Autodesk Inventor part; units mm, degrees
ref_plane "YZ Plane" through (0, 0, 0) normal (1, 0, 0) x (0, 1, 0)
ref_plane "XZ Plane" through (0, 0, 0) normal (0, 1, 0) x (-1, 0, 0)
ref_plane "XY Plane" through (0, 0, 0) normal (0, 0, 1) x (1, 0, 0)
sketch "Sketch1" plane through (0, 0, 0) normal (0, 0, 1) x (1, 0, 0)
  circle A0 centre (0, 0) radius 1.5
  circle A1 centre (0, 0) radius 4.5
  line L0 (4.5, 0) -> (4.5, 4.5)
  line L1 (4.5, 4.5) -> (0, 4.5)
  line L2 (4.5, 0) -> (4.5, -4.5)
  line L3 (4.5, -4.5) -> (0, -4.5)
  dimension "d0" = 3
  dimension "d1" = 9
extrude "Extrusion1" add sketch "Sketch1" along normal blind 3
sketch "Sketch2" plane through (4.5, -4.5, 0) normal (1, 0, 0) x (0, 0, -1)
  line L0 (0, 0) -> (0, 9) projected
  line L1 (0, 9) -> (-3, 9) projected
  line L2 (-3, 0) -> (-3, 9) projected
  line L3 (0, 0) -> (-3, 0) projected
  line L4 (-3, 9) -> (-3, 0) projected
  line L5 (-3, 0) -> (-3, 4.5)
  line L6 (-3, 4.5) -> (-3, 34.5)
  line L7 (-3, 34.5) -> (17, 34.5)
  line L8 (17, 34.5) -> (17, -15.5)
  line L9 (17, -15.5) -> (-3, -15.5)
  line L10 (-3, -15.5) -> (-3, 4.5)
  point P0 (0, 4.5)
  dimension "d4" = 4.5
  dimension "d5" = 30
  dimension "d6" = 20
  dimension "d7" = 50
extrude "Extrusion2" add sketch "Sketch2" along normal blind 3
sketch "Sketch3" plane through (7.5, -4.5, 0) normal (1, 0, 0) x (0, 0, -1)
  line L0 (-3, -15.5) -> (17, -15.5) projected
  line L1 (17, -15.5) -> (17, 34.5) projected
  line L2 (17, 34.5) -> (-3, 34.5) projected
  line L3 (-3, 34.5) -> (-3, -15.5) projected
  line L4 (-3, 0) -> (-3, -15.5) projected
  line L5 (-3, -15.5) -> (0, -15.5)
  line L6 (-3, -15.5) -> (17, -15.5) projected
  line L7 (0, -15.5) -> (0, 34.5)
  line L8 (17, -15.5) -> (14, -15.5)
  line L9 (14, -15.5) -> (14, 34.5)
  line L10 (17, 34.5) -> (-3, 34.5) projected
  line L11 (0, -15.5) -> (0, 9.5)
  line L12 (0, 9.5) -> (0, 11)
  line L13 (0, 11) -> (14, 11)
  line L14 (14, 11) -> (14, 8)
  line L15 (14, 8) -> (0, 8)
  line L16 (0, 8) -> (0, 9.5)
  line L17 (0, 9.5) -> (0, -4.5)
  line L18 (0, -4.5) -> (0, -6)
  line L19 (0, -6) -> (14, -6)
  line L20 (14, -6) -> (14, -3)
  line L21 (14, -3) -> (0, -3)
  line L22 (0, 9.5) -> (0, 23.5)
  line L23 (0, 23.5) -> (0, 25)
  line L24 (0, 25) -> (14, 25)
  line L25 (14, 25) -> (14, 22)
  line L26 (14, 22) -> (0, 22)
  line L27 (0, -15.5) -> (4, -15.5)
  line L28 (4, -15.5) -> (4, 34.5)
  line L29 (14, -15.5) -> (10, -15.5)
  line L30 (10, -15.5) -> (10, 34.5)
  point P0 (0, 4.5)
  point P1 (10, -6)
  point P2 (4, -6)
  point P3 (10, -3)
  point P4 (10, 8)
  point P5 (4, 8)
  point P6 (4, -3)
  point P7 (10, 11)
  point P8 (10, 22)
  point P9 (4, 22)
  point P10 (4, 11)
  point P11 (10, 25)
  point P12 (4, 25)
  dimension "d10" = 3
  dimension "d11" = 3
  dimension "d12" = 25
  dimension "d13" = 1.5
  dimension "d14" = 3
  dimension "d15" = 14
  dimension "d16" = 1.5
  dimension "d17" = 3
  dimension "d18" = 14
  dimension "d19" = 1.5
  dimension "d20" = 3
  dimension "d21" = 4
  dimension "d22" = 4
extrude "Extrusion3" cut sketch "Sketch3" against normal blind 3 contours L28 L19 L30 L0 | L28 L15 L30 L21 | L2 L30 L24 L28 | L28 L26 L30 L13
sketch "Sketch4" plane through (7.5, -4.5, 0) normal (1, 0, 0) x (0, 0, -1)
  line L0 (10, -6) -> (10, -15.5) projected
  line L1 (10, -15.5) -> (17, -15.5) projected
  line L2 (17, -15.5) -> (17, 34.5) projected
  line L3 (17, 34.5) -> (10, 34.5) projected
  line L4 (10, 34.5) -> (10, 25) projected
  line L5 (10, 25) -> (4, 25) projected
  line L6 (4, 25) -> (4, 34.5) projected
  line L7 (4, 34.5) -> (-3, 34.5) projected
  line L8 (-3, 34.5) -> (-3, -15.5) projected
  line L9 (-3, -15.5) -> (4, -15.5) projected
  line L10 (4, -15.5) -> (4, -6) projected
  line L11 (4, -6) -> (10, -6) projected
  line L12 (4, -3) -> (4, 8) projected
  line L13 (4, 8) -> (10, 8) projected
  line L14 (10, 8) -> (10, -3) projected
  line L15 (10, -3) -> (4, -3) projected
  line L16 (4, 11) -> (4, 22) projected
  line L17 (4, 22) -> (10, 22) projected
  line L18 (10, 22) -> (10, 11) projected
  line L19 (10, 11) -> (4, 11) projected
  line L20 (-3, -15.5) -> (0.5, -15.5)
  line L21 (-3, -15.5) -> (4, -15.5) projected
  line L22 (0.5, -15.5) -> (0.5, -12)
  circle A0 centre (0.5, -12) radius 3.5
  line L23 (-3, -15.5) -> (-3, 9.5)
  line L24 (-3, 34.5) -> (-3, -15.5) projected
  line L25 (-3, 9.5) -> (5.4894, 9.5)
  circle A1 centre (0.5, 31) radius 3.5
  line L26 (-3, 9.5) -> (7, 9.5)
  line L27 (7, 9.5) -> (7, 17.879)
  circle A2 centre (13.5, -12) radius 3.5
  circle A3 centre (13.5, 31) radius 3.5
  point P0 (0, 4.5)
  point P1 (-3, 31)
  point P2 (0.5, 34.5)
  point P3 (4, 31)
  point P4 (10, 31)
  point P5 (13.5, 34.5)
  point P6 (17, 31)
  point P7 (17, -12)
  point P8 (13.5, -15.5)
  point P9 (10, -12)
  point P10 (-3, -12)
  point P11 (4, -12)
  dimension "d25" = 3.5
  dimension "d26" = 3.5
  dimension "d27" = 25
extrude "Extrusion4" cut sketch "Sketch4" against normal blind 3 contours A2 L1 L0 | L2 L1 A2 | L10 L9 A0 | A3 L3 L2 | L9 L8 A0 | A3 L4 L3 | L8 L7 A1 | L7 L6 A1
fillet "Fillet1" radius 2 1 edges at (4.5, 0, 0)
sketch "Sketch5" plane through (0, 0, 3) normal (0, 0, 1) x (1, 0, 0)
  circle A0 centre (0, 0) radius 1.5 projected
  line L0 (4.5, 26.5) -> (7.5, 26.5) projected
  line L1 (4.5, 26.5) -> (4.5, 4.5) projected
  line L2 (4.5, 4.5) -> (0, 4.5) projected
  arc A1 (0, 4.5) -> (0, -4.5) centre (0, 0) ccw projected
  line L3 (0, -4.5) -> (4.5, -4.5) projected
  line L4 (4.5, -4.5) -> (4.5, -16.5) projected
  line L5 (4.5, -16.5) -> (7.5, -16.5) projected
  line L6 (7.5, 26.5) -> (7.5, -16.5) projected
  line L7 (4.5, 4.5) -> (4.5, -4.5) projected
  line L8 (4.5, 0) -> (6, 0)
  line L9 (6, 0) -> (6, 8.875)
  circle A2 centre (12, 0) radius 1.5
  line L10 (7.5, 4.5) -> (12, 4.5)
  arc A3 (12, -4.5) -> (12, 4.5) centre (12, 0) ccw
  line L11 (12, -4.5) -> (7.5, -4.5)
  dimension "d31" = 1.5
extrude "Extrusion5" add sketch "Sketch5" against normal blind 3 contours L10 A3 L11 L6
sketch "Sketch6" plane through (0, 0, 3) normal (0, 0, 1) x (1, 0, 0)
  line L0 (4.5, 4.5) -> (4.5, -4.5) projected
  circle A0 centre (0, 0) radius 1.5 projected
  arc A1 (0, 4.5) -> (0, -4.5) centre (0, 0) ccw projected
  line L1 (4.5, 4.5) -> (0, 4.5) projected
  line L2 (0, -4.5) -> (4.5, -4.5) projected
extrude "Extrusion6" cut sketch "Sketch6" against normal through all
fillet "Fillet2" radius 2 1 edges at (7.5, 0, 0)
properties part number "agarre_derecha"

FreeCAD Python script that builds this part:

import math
import FreeCAD as App
import Part
import Sketcher


def edges_at(feature, points):
    """Names of the edges that pass closest to the given points."""
    edges = feature.Shape.Edges
    near = lambda p: min(range(len(edges)), key=lambda i: edges[i].distToShape(Part.Vertex(*p))[0])
    return sorted({f"Edge{near(p) + 1}" for p in points})

doc = App.newDocument("Part")
body = doc.addObject("PartDesign::Body", "Body")

# Sketch on XY plane
sketch1 = doc.addObject("Sketcher::SketchObject", "Sketch")
body.addObject(sketch1)
sketch1.AttachmentSupport = (doc.XY_Plane, [""])
sketch1.MapMode = "FlatFace"
sketch1.addGeometry(Part.ArcOfCircle(Part.Circle(App.Vector(0, 0, 0), App.Vector(0, 0, 1), 4.5), math.radians(90), math.radians(270)), False)
sketch1.addGeometry(Part.LineSegment(App.Vector(0, -4.5, 0), App.Vector(4.5, -4.5, 0)), False)
sketch1.addGeometry(Part.LineSegment(App.Vector(4.5, -4.5, 0), App.Vector(4.5, 4.5, 0)), False)
sketch1.addGeometry(Part.LineSegment(App.Vector(4.5, 4.5, 0), App.Vector(0, 4.5, 0)), False)
sketch1.addGeometry(Part.Circle(App.Vector(0, 0, 0), App.Vector(0, 0, 1), 1.5), False)
sketch1.addConstraint(Sketcher.Constraint("Tangent", 0, 2, 1, 1))
sketch1.addConstraint(Sketcher.Constraint("Coincident", 1, 2, 2, 1))
sketch1.addConstraint(Sketcher.Constraint("Coincident", 2, 2, 3, 1))
sketch1.addConstraint(Sketcher.Constraint("Tangent", 3, 2, 0, 1))
sketch1.addConstraint(Sketcher.Constraint("Horizontal", 1))
sketch1.addConstraint(Sketcher.Constraint("Vertical", 2))
sketch1.addConstraint(Sketcher.Constraint("Horizontal", 3))
sketch1.addConstraint(Sketcher.Constraint("Coincident", 0, 3, -1, 1))
sketch1.addConstraint(Sketcher.Constraint("Coincident", 4, 3, -1, 1))
sketch1.addConstraint(Sketcher.Constraint("Diameter", 4, 3.0))
sketch1.addConstraint(Sketcher.Constraint("Radius", 0, 4.5))
sketch1.addConstraint(Sketcher.Constraint("DistanceX", 1, 1, 1, 2, 4.5))
pad1 = doc.addObject("PartDesign::Pad", "Pad")
body.addObject(pad1)
pad1.Profile = sketch1
pad1.Length = 3

# Sketch on YZ plane
sketch2 = doc.addObject("Sketcher::SketchObject", "Sketch001")
body.addObject(sketch2)
sketch2.AttachmentSupport = (doc.YZ_Plane, [""])
sketch2.MapMode = "FlatFace"
sketch2.AttachmentOffset = App.Placement(App.Vector(0, 0, 4.5), App.Rotation())
sketch2.addGeometry(Part.LineSegment(App.Vector(-20, 3, 0), App.Vector(-20, -17, 0)), False)
sketch2.addGeometry(Part.LineSegment(App.Vector(-20, -17, 0), App.Vector(30, -17, 0)), False)
sketch2.addGeometry(Part.LineSegment(App.Vector(30, -17, 0), App.Vector(30, 3, 0)), False)
sketch2.addGeometry(Part.LineSegment(App.Vector(30, 3, 0), App.Vector(-20, 3, 0)), False)
sketch2.addConstraint(Sketcher.Constraint("Coincident", 0, 2, 1, 1))
sketch2.addConstraint(Sketcher.Constraint("Coincident", 1, 2, 2, 1))
sketch2.addConstraint(Sketcher.Constraint("Coincident", 2, 2, 3, 1))
sketch2.addConstraint(Sketcher.Constraint("Coincident", 3, 2, 0, 1))
sketch2.addConstraint(Sketcher.Constraint("Vertical", 0))
sketch2.addConstraint(Sketcher.Constraint("Horizontal", 1))
sketch2.addConstraint(Sketcher.Constraint("Vertical", 2))
sketch2.addConstraint(Sketcher.Constraint("Horizontal", 3))
sketch2.addConstraint(Sketcher.Constraint("DistanceX", 1, 1, 1, 2, 50.0))
sketch2.addConstraint(Sketcher.Constraint("DistanceY", 0, 2, 0, 1, 20.0))
sketch2.addConstraint(Sketcher.Constraint("DistanceX", 0, 2, -1, 1, 20.0))
sketch2.addConstraint(Sketcher.Constraint("DistanceY", 0, 2, -1, 1, 17.0))
pad2 = doc.addObject("PartDesign::Pad", "Pad001")
body.addObject(pad2)
pad2.Profile = sketch2
pad2.Length = 3

# Sketch on YZ plane
sketch3 = doc.addObject("Sketcher::SketchObject", "Sketch002")
body.addObject(sketch3)
sketch3.AttachmentSupport = (doc.YZ_Plane, [""])
sketch3.MapMode = "FlatFace"
sketch3.AttachmentOffset = App.Placement(App.Vector(0, 0, 7.5), App.Rotation())
sketch3.addGeometry(Part.LineSegment(App.Vector(-10, -4, 0), App.Vector(-20, -4, 0)), False)
sketch3.addGeometry(Part.LineSegment(App.Vector(-20, -4, 0), App.Vector(-20, -10, 0)), False)
sketch3.addGeometry(Part.LineSegment(App.Vector(-20, -10, 0), App.Vector(-10, -10, 0)), False)
sketch3.addGeometry(Part.LineSegment(App.Vector(-10, -10, 0), App.Vector(-10, -4, 0)), False)
sketch3.addGeometry(Part.LineSegment(App.Vector(4, -4, 0), App.Vector(-8, -4, 0)), False)
sketch3.addGeometry(Part.LineSegment(App.Vector(-8, -4, 0), App.Vector(-8, -10, 0)), False)
sketch3.addGeometry(Part.LineSegment(App.Vector(-8, -10, 0), App.Vector(4, -10, 0)), False)
sketch3.addGeometry(Part.LineSegment(App.Vector(4, -10, 0), App.Vector(4, -4, 0)), False)
sketch3.addGeometry(Part.LineSegment(App.Vector(30, -10, 0), App.Vector(30, -4, 0)), False)
sketch3.addGeometry(Part.LineSegment(App.Vector(30, -4, 0), App.Vector(20, -4, 0)), False)
sketch3.addGeometry(Part.LineSegment(App.Vector(20, -4, 0), App.Vector(20, -10, 0)), False)
sketch3.addGeometry(Part.LineSegment(App.Vector(20, -10, 0), App.Vector(30, -10, 0)), False)
sketch3.addGeometry(Part.LineSegment(App.Vector(18, -4, 0), App.Vector(6, -4, 0)), False)
sketch3.addGeometry(Part.LineSegment(App.Vector(6, -4, 0), App.Vector(6, -10, 0)), False)
sketch3.addGeometry(Part.LineSegment(App.Vector(6, -10, 0), App.Vector(18, -10, 0)), False)
sketch3.addGeometry(Part.LineSegment(App.Vector(18, -10, 0), App.Vector(18, -4, 0)), False)
sketch3.addConstraint(Sketcher.Constraint("Coincident", 0, 2, 1, 1))
sketch3.addConstraint(Sketcher.Constraint("Coincident", 1, 2, 2, 1))
sketch3.addConstraint(Sketcher.Constraint("Coincident", 2, 2, 3, 1))
sketch3.addConstraint(Sketcher.Constraint("Coincident", 3, 2, 0, 1))
sketch3.addConstraint(Sketcher.Constraint("Coincident", 4, 2, 5, 1))
sketch3.addConstraint(Sketcher.Constraint("Coincident", 5, 2, 6, 1))
sketch3.addConstraint(Sketcher.Constraint("Coincident", 6, 2, 7, 1))
sketch3.addConstraint(Sketcher.Constraint("Coincident", 7, 2, 4, 1))
sketch3.addConstraint(Sketcher.Constraint("Coincident", 8, 2, 9, 1))
sketch3.addConstraint(Sketcher.Constraint("Coincident", 9, 2, 10, 1))
sketch3.addConstraint(Sketcher.Constraint("Coincident", 10, 2, 11, 1))
sketch3.addConstraint(Sketcher.Constraint("Coincident", 11, 2, 8, 1))
sketch3.addConstraint(Sketcher.Constraint("Coincident", 12, 2, 13, 1))
sketch3.addConstraint(Sketcher.Constraint("Coincident", 13, 2, 14, 1))
sketch3.addConstraint(Sketcher.Constraint("Coincident", 14, 2, 15, 1))
sketch3.addConstraint(Sketcher.Constraint("Coincident", 15, 2, 12, 1))
sketch3.addConstraint(Sketcher.Constraint("Horizontal", 0))
sketch3.addConstraint(Sketcher.Constraint("Vertical", 1))
sketch3.addConstraint(Sketcher.Constraint("Horizontal", 2))
sketch3.addConstraint(Sketcher.Constraint("Vertical", 3))
sketch3.addConstraint(Sketcher.Constraint("Horizontal", 4))
sketch3.addConstraint(Sketcher.Constraint("Vertical", 5))
sketch3.addConstraint(Sketcher.Constraint("Horizontal", 6))
sketch3.addConstraint(Sketcher.Constraint("Vertical", 7))
sketch3.addConstraint(Sketcher.Constraint("Vertical", 8))
sketch3.addConstraint(Sketcher.Constraint("Horizontal", 9))
sketch3.addConstraint(Sketcher.Constraint("Vertical", 10))
sketch3.addConstraint(Sketcher.Constraint("Horizontal", 11))
sketch3.addConstraint(Sketcher.Constraint("Horizontal", 12))
sketch3.addConstraint(Sketcher.Constraint("Vertical", 13))
sketch3.addConstraint(Sketcher.Constraint("Horizontal", 14))
sketch3.addConstraint(Sketcher.Constraint("Vertical", 15))
sketch3.addConstraint(Sketcher.Constraint("Horizontal", 3, 2, 4, 2))
sketch3.addConstraint(Sketcher.Constraint("Horizontal", 2, 2, 5, 2))
sketch3.addConstraint(Sketcher.Constraint("Horizontal", 7, 2, 8, 2))
sketch3.addConstraint(Sketcher.Constraint("Horizontal", 6, 2, 10, 2))
sketch3.addConstraint(Sketcher.Constraint("Horizontal", 9, 2, 12, 2))
sketch3.addConstraint(Sketcher.Constraint("Horizontal", 11, 2, 13, 2))
sketch3.addConstraint(Sketcher.Constraint("Equal", 2, 9))
sketch3.addConstraint(Sketcher.Constraint("Equal", 6, 12))
sketch3.addConstraint(Sketcher.Constraint("DistanceY", 0, 2, -1, 1, 4.0))
sketch3.addConstraint(Sketcher.Constraint("DistanceX", 3, 2, 4, 2, 3.0))
sketch3.addConstraint(Sketcher.Constraint("DistanceX", 2, 2, 6, 2, 14.0))
sketch3.addConstraint(Sketcher.Constraint("DistanceX", 7, 2, 12, 2, 3.0))
sketch3.addConstraint(Sketcher.Constraint("DistanceX", 12, 2, 9, 2, 14.0))
sketch3.addConstraint(Sketcher.Constraint("DistanceY", 1, 2, 1, 1, 6.0))
sketch3.addConstraint(Sketcher.Constraint("DistanceX", 0, 2, 0, 1, 9.5))
sketch3.addConstraint(Sketcher.Constraint("DistanceX", 0, 2, -1, 1, 20.0))
pocket1 = doc.addObject("PartDesign::Pocket", "Pocket")
body.addObject(pocket1)
pocket1.Profile = sketch3
pocket1.Length = 3

# Sketch on YZ plane
sketch4 = doc.addObject("Sketcher::SketchObject", "Sketch003")
body.addObject(sketch4)
sketch4.AttachmentSupport = (doc.YZ_Plane, [""])
sketch4.MapMode = "FlatFace"
sketch4.AttachmentOffset = App.Placement(App.Vector(0, 0, 7.5), App.Rotation())
sketch4.addGeometry(Part.ArcOfCircle(Part.Circle(App.Vector(-16.5, -13.5, 0), App.Vector(0, 0, 1), 3.5), math.radians(90), math.radians(180)), False)
sketch4.addGeometry(Part.LineSegment(App.Vector(-16.5, -10, 0), App.Vector(-20, -10, 0)), False)
sketch4.addGeometry(Part.LineSegment(App.Vector(-20, -10, 0), App.Vector(-20, -13.5, 0)), False)
sketch4.addGeometry(Part.LineSegment(App.Vector(-20, -17, 0), App.Vector(-16.5, -17, 0)), False)
sketch4.addGeometry(Part.ArcOfCircle(Part.Circle(App.Vector(-16.5, -13.5, 0), App.Vector(0, 0, 1), 3.5), math.radians(180), math.radians(270)), False)
sketch4.addGeometry(Part.LineSegment(App.Vector(-20, -13.5, 0), App.Vector(-20, -17, 0)), False)
sketch4.addGeometry(Part.LineSegment(App.Vector(-20, -4, 0), App.Vector(-16.5, -4, 0)), False)
sketch4.addGeometry(Part.ArcOfCircle(Part.Circle(App.Vector(-16.5, -0.5, 0), App.Vector(0, 0, 1), 3.5), math.radians(180), math.radians(270)), False)
sketch4.addGeometry(Part.LineSegment(App.Vector(-20, -0.5, 0), App.Vector(-20, -4, 0)), False)
sketch4.addGeometry(Part.ArcOfCircle(Part.Circle(App.Vector(26.5, -13.5, 0), App.Vector(0, 0, 1), 3.5), math.radians(-90), math.radians(0)), False)
sketch4.addGeometry(Part.LineSegment(App.Vector(26.5, -17, 0), App.Vector(30, -17, 0)), False)
sketch4.addGeometry(Part.LineSegment(App.Vector(30, -17, 0), App.Vector(30, -13.5, 0)), False)
sketch4.addGeometry(Part.LineSegment(App.Vector(-20, 3, 0), App.Vector(-20, -0.5, 0)), False)
sketch4.addGeometry(Part.ArcOfCircle(Part.Circle(App.Vector(-16.5, -0.5, 0), App.Vector(0, 0, 1), 3.5), math.radians(90), math.radians(180)), False)
sketch4.addGeometry(Part.LineSegment(App.Vector(-16.5, 3, 0), App.Vector(-20, 3, 0)), False)
sketch4.addGeometry(Part.ArcOfCircle(Part.Circle(App.Vector(26.5, -13.5, 0), App.Vector(0, 0, 1), 3.5), math.radians(0), math.radians(90)), False)
sketch4.addGeometry(Part.LineSegment(App.Vector(30, -13.5, 0), App.Vector(30, -10, 0)), False)
sketch4.addGeometry(Part.LineSegment(App.Vector(30, -10, 0), App.Vector(26.5, -10, 0)), False)
sketch4.addGeometry(Part.LineSegment(App.Vector(30, 3, 0), App.Vector(26.5, 3, 0)), False)
sketch4.addGeometry(Part.ArcOfCircle(Part.Circle(App.Vector(26.5, -0.5, 0), App.Vector(0, 0, 1), 3.5), math.radians(0), math.radians(90)), False)
sketch4.addGeometry(Part.LineSegment(App.Vector(30, -0.5, 0), App.Vector(30, 3, 0)), False)
sketch4.addGeometry(Part.LineSegment(App.Vector(30, -4, 0), App.Vector(30, -0.5, 0)), False)
sketch4.addGeometry(Part.ArcOfCircle(Part.Circle(App.Vector(26.5, -0.5, 0), App.Vector(0, 0, 1), 3.5), math.radians(-90), math.radians(0)), False)
sketch4.addGeometry(Part.LineSegment(App.Vector(26.5, -4, 0), App.Vector(30, -4, 0)), False)
sketch4.addConstraint(Sketcher.Constraint("Tangent", 0, 1, 1, 1))
sketch4.addConstraint(Sketcher.Constraint("Coincident", 1, 2, 2, 1))
sketch4.addConstraint(Sketcher.Constraint("Tangent", 2, 2, 0, 2))
sketch4.addConstraint(Sketcher.Constraint("Tangent", 3, 2, 4, 2))
sketch4.addConstraint(Sketcher.Constraint("Tangent", 4, 1, 5, 1))
sketch4.addConstraint(Sketcher.Constraint("Coincident", 5, 2, 3, 1))
sketch4.addConstraint(Sketcher.Constraint("Tangent", 6, 2, 7, 2))
sketch4.addConstraint(Sketcher.Constraint("Tangent", 7, 1, 8, 1))
sketch4.addConstraint(Sketcher.Constraint("Coincident", 8, 2, 6, 1))
sketch4.addConstraint(Sketcher.Constraint("Tangent", 9, 1, 10, 1))
sketch4.addConstraint(Sketcher.Constraint("Coincident", 10, 2, 11, 1))
sketch4.addConstraint(Sketcher.Constraint("Tangent", 11, 2, 9, 2))
sketch4.addConstraint(Sketcher.Constraint("Tangent", 12, 2, 13, 2))
sketch4.addConstraint(Sketcher.Constraint("Tangent", 13, 1, 14, 1))
sketch4.addConstraint(Sketcher.Constraint("Coincident", 14, 2, 12, 1))
sketch4.addConstraint(Sketcher.Constraint("Tangent", 15, 1, 16, 1))
sketch4.addConstraint(Sketcher.Constraint("Coincident", 16, 2, 17, 1))
sketch4.addConstraint(Sketcher.Constraint("Tangent", 17, 2, 15, 2))
sketch4.addConstraint(Sketcher.Constraint("Tangent", 18, 2, 19, 2))
sketch4.addConstraint(Sketcher.Constraint("Tangent", 19, 1, 20, 1))
sketch4.addConstraint(Sketcher.Constraint("Coincident", 20, 2, 18, 1))
sketch4.addConstraint(Sketcher.Constraint("Tangent", 21, 2, 22, 2))
sketch4.addConstraint(Sketcher.Constraint("Tangent", 22, 1, 23, 1))
sketch4.addConstraint(Sketcher.Constraint("Coincident", 23, 2, 21, 1))
sketch4.addConstraint(Sketcher.Constraint("Horizontal", 1))
sketch4.addConstraint(Sketcher.Constraint("Vertical", 2))
sketch4.addConstraint(Sketcher.Constraint("Horizontal", 3))
sketch4.addConstraint(Sketcher.Constraint("Vertical", 5))
sketch4.addConstraint(Sketcher.Constraint("Horizontal", 6))
sketch4.addConstraint(Sketcher.Constraint("Vertical", 8))
sketch4.addConstraint(Sketcher.Constraint("Horizontal", 10))
sketch4.addConstraint(Sketcher.Constraint("Vertical", 11))
sketch4.addConstraint(Sketcher.Constraint("Vertical", 12))
sketch4.addConstraint(Sketcher.Constraint("Horizontal", 14))
sketch4.addConstraint(Sketcher.Constraint("Vertical", 16))
sketch4.addConstraint(Sketcher.Constraint("Horizontal", 17))
sketch4.addConstraint(Sketcher.Constraint("Horizontal", 18))
sketch4.addConstraint(Sketcher.Constraint("Vertical", 20))
sketch4.addConstraint(Sketcher.Constraint("Vertical", 21))
sketch4.addConstraint(Sketcher.Constraint("Horizontal", 23))
sketch4.addConstraint(Sketcher.Constraint("Coincident", 4, 3, 0, 3))
sketch4.addConstraint(Sketcher.Constraint("Coincident", 13, 3, 7, 3))
sketch4.addConstraint(Sketcher.Constraint("Coincident", 15, 3, 9, 3))
sketch4.addConstraint(Sketcher.Constraint("Coincident", 22, 3, 19, 3))
sketch4.addConstraint(Sketcher.Constraint("Equal", 0, 4))
sketch4.addConstraint(Sketcher.Constraint("Equal", 4, 7))
sketch4.addConstraint(Sketcher.Constraint("Equal", 7, 9))
sketch4.addConstraint(Sketcher.Constraint("Equal", 9, 13))
sketch4.addConstraint(Sketcher.Constraint("Equal", 13, 15))
sketch4.addConstraint(Sketcher.Constraint("Equal", 15, 19))
sketch4.addConstraint(Sketcher.Constraint("Equal", 19, 22))
sketch4.addConstraint(Sketcher.Constraint("Horizontal", 4, 3, 9, 3))
sketch4.addConstraint(Sketcher.Constraint("Horizontal", 13, 3, 19, 3))
sketch4.addConstraint(Sketcher.Constraint("Vertical", 4, 3, 7, 3))
sketch4.addConstraint(Sketcher.Constraint("Vertical", 15, 3, 19, 3))
sketch4.addConstraint(Sketcher.Constraint("Radius", 0, 3.5))
sketch4.addConstraint(Sketcher.Constraint("DistanceY", 0, 1, -1, 1, 10.0))
sketch4.addConstraint(Sketcher.Constraint("DistanceX", 1, 2, -1, 1, 20.0))
sketch4.addConstraint(Sketcher.Constraint("DistanceY", 6, 2, -1, 1, 4.0))
sketch4.addConstraint(Sketcher.Constraint("DistanceX", -1, 1, 10, 2, 30.0))
pocket2 = doc.addObject("PartDesign::Pocket", "Pocket001")
body.addObject(pocket2)
pocket2.Profile = sketch4
pocket2.Length = 3
doc.recompute()

fillet = doc.addObject("PartDesign::Fillet", "Fillet")
body.addObject(fillet)
fillet.Base = (pocket2, edges_at(pocket2, [(4.5, 0, 0)]))
fillet.Radius = 2

# Sketch on XY plane
sketch5 = doc.addObject("Sketcher::SketchObject", "Sketch004")
body.addObject(sketch5)
sketch5.AttachmentSupport = (doc.XY_Plane, [""])
sketch5.MapMode = "FlatFace"
sketch5.AttachmentOffset = App.Placement(App.Vector(0, 0, 3), App.Rotation())
sketch5.addGeometry(Part.LineSegment(App.Vector(12, 4.5, 0), App.Vector(7.5, 4.5, 0)), False)
sketch5.addGeometry(Part.LineSegment(App.Vector(7.5, 4.5, 0), App.Vector(7.5, -4.5, 0)), False)
sketch5.addGeometry(Part.LineSegment(App.Vector(7.5, -4.5, 0), App.Vector(12, -4.5, 0)), False)
sketch5.addGeometry(Part.ArcOfCircle(Part.Circle(App.Vector(12, 0, 0), App.Vector(0, 0, 1), 4.5), math.radians(-90), math.radians(90)), False)
sketch5.addGeometry(Part.Circle(App.Vector(12, 0, 0), App.Vector(0, 0, 1), 1.5), False)
sketch5.addConstraint(Sketcher.Constraint("Coincident", 0, 2, 1, 1))
sketch5.addConstraint(Sketcher.Constraint("Coincident", 1, 2, 2, 1))
sketch5.addConstraint(Sketcher.Constraint("Tangent", 2, 2, 3, 1))
sketch5.addConstraint(Sketcher.Constraint("Tangent", 3, 2, 0, 1))
sketch5.addConstraint(Sketcher.Constraint("Horizontal", 0))
sketch5.addConstraint(Sketcher.Constraint("Vertical", 1))
sketch5.addConstraint(Sketcher.Constraint("Horizontal", 2))
sketch5.addConstraint(Sketcher.Constraint("Coincident", 4, 3, 3, 3))
sketch5.addConstraint(Sketcher.Constraint("PointOnObject", 3, 3, -1))
sketch5.addConstraint(Sketcher.Constraint("Diameter", 4, 3.0))
sketch5.addConstraint(Sketcher.Constraint("Radius", 3, 4.5))
sketch5.addConstraint(Sketcher.Constraint("DistanceX", 0, 2, 0, 1, 4.5))
sketch5.addConstraint(Sketcher.Constraint("DistanceX", -1, 1, 3, 3, 12.0))
pad3 = doc.addObject("PartDesign::Pad", "Pad002")
body.addObject(pad3)
pad3.Profile = sketch5
pad3.Length = 3
pad3.Reversed = True

# Sketch on XY plane
sketch6 = doc.addObject("Sketcher::SketchObject", "Sketch005")
body.addObject(sketch6)
sketch6.AttachmentSupport = (doc.XY_Plane, [""])
sketch6.MapMode = "FlatFace"
sketch6.AttachmentOffset = App.Placement(App.Vector(0, 0, 3), App.Rotation())
sketch6.addGeometry(Part.LineSegment(App.Vector(4.5, -4.5, 0), App.Vector(4.5, 4.5, 0)), False)
sketch6.addGeometry(Part.LineSegment(App.Vector(4.5, 4.5, 0), App.Vector(0, 4.5, 0)), False)
sketch6.addGeometry(Part.ArcOfCircle(Part.Circle(App.Vector(0, 0, 0), App.Vector(0, 0, 1), 4.5), math.radians(90), math.radians(270)), False)
sketch6.addGeometry(Part.LineSegment(App.Vector(0, -4.5, 0), App.Vector(4.5, -4.5, 0)), False)
sketch6.addGeometry(Part.Circle(App.Vector(0, 0, 0), App.Vector(0, 0, 1), 1.5), False)
sketch6.addConstraint(Sketcher.Constraint("Coincident", 0, 2, 1, 1))
sketch6.addConstraint(Sketcher.Constraint("Tangent", 1, 2, 2, 1))
sketch6.addConstraint(Sketcher.Constraint("Tangent", 2, 2, 3, 1))
sketch6.addConstraint(Sketcher.Constraint("Coincident", 3, 2, 0, 1))
sketch6.addConstraint(Sketcher.Constraint("Vertical", 0))
sketch6.addConstraint(Sketcher.Constraint("Horizontal", 1))
sketch6.addConstraint(Sketcher.Constraint("Horizontal", 3))
sketch6.addConstraint(Sketcher.Constraint("Coincident", 2, 3, -1, 1))
sketch6.addConstraint(Sketcher.Constraint("Coincident", 4, 3, -1, 1))
sketch6.addConstraint(Sketcher.Constraint("Diameter", 4, 3.0))
sketch6.addConstraint(Sketcher.Constraint("Radius", 2, 4.5))
sketch6.addConstraint(Sketcher.Constraint("DistanceX", 1, 2, 1, 1, 4.5))
pocket3 = doc.addObject("PartDesign::Pocket", "Pocket002")
body.addObject(pocket3)
pocket3.Profile = sketch6
pocket3.Type = "ThroughAll"
doc.recompute()

fillet2 = doc.addObject("PartDesign::Fillet", "Fillet001")
body.addObject(fillet2)
fillet2.Base = (pocket3, edges_at(pocket3, [(7.5, 0, 0)]))
fillet2.Radius = 2

doc.recompute()
